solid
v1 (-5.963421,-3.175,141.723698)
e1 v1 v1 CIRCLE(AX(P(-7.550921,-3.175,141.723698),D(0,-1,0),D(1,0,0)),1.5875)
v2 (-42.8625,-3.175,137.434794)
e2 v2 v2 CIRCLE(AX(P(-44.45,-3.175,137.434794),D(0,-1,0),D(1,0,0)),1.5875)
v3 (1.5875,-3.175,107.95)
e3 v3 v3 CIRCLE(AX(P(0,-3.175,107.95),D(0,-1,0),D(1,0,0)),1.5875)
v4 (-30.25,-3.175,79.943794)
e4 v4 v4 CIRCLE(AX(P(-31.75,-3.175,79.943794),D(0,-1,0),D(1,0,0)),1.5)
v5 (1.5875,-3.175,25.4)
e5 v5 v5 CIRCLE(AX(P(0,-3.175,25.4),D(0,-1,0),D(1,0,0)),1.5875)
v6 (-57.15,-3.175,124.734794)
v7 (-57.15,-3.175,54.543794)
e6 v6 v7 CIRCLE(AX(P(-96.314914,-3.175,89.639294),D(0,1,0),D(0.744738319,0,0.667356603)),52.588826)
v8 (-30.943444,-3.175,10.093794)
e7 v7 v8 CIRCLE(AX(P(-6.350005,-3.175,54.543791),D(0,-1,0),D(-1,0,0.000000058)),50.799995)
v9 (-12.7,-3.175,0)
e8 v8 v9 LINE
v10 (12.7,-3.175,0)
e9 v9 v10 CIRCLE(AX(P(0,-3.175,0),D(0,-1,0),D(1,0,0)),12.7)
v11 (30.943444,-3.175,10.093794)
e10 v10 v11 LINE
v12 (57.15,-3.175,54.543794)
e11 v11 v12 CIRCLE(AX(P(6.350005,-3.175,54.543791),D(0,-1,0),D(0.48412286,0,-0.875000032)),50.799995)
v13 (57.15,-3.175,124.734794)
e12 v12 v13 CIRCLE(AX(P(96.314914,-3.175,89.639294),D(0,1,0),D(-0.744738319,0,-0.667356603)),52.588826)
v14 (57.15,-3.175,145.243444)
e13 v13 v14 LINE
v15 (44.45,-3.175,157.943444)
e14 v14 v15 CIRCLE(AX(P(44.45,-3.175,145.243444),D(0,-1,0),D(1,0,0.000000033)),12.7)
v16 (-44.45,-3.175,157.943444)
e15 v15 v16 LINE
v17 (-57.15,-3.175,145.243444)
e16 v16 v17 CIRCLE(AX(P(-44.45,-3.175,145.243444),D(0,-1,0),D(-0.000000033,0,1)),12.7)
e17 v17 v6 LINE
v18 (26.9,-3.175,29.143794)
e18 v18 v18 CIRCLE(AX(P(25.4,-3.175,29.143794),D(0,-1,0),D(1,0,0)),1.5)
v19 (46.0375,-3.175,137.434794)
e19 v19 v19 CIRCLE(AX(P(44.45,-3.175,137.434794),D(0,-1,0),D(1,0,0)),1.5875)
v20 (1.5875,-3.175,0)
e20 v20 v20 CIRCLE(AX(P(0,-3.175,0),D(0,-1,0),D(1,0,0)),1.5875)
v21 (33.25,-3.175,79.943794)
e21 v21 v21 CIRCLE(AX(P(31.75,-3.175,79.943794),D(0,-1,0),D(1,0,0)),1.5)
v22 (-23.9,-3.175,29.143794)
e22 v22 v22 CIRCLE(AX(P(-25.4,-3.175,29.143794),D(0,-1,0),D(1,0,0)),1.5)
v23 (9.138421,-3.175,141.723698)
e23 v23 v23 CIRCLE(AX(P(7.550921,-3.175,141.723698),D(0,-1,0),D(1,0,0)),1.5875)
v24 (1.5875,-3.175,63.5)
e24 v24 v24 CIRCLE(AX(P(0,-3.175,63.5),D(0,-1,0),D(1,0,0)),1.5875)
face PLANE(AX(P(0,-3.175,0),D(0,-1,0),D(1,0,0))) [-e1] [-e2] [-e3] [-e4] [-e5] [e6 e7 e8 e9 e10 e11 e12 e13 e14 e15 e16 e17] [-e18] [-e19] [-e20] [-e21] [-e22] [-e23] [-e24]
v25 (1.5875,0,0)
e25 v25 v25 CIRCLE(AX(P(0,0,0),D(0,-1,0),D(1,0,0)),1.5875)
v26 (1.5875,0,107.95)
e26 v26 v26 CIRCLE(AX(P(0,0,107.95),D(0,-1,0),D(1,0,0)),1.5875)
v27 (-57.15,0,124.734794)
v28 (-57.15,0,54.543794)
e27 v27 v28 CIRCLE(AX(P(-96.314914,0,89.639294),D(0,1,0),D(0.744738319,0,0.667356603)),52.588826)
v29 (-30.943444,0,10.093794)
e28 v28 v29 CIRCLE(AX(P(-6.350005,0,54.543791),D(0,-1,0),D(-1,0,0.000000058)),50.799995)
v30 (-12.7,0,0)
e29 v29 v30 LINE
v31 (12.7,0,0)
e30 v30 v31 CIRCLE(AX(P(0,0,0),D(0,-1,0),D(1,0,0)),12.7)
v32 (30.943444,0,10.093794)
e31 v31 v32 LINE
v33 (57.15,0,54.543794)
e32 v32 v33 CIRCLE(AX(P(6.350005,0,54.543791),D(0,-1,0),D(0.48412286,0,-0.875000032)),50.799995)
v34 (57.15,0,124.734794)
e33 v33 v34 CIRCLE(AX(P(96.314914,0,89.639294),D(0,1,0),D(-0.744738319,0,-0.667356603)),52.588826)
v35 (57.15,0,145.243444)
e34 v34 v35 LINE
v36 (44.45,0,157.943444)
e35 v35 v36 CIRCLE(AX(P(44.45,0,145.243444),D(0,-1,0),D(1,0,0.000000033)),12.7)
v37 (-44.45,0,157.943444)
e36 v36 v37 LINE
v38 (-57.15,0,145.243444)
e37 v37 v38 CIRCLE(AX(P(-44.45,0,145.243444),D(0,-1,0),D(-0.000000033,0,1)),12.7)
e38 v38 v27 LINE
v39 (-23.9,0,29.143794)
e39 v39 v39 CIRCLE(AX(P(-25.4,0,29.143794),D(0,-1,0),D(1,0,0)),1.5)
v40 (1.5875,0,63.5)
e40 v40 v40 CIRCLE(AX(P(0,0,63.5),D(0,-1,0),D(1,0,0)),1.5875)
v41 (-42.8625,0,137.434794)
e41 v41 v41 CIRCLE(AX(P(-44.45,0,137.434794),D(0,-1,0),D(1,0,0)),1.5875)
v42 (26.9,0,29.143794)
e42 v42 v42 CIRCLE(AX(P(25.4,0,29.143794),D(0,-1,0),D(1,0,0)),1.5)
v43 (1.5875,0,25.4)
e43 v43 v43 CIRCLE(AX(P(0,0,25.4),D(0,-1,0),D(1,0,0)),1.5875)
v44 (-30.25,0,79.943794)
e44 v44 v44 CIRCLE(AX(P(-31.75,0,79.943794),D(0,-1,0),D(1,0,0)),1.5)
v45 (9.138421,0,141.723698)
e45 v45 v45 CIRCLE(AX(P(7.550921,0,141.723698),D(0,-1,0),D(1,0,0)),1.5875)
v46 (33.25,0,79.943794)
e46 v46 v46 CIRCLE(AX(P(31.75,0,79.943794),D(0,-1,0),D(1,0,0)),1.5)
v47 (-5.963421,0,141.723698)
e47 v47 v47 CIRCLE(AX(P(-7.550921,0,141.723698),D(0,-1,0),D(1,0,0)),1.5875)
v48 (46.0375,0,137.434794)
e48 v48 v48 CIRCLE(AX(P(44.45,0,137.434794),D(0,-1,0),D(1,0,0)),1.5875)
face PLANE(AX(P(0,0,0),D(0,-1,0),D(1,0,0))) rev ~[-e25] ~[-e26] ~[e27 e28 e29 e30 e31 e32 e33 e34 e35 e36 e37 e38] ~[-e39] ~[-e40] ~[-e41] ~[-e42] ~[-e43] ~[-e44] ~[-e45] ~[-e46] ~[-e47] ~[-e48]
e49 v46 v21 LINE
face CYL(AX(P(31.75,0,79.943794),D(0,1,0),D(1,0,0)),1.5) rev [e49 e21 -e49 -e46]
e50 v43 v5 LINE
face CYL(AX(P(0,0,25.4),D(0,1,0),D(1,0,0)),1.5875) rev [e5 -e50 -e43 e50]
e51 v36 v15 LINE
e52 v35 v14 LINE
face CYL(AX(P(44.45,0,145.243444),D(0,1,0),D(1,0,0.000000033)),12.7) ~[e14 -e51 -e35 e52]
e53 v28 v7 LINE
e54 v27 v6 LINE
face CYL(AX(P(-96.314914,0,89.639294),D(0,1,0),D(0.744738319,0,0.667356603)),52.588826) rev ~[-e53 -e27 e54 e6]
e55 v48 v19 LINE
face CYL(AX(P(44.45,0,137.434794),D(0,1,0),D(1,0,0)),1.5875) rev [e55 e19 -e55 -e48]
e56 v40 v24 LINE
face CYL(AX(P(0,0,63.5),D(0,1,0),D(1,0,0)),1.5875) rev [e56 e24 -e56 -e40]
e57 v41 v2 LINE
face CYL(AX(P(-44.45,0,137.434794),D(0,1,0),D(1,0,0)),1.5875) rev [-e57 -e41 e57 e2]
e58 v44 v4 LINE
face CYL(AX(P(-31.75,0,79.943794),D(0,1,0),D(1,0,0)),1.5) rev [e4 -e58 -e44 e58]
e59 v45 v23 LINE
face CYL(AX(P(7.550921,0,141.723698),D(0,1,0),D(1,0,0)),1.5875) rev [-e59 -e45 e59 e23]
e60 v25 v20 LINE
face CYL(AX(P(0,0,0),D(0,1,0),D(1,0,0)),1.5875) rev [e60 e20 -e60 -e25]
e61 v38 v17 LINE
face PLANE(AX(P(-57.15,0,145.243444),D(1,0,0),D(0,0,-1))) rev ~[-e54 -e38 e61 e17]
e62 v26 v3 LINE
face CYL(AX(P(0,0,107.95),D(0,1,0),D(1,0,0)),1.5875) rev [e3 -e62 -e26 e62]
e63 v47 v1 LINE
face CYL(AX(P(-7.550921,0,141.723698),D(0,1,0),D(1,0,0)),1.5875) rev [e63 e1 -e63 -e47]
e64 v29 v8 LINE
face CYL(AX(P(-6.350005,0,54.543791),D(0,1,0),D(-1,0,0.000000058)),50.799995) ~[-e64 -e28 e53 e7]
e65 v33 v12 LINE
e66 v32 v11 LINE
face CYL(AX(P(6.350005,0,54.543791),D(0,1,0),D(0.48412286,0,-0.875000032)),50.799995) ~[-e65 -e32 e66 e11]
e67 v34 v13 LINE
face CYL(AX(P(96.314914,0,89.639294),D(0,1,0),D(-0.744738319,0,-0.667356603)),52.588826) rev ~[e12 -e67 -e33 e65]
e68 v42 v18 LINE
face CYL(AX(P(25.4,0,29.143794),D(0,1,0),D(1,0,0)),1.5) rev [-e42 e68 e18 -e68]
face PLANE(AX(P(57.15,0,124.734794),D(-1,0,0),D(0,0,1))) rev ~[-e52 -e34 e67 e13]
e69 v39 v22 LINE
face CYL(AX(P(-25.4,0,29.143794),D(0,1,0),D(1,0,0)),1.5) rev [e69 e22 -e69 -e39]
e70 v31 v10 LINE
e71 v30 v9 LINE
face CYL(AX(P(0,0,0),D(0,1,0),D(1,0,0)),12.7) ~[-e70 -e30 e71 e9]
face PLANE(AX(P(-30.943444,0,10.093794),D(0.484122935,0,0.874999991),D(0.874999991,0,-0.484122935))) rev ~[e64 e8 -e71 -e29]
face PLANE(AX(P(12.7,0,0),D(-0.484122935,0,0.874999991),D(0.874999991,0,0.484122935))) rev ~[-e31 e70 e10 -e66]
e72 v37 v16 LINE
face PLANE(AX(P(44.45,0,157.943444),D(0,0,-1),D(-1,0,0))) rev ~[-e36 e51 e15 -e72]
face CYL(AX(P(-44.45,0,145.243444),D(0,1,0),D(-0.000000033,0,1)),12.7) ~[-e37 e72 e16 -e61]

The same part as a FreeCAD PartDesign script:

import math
import FreeCAD as App
import Part
import Sketcher

V = App.Vector
Q = App.Units.Quantity

doc = App.newDocument("Part")
body = doc.addObject("PartDesign::Body", "Body")

sketch1 = body.newObject("Sketcher::SketchObject", "Sketch")
sketch1.AttachmentSupport = (doc.getObject("XZ_Plane"), [""])
sketch1.MapMode = "FlatFace"
sketch1.addGeometry([
    Part.ArcOfCircle(Part.Circle(V(0, 0, 0), V(0, 0, 1), 12.7), math.radians(180), math.radians(360)),
    Part.LineSegment(V(12.7, 0, 0), V(30.9, 10.1, 0)),
    Part.ArcOfCircle(Part.Circle(V(6.4, 54.5, 0), V(0, 0, 1), 50.8), math.radians(-61), math.radians(0)),
    Part.ArcOfCircle(Part.Circle(V(96.3, 89.6, 0), V(0, 0, 1), 52.6), math.radians(138), math.radians(222)),
    Part.LineSegment(V(57.1, 124.7, 0), V(57.1, 145.2, 0)),
    Part.ArcOfCircle(Part.Circle(V(44.4, 145.2, 0), V(0, 0, 1), 12.7), math.radians(0), math.radians(90)),
    Part.LineSegment(V(44.5, 157.9, 0), V(-44.5, 157.9, 0)),
    Part.ArcOfCircle(Part.Circle(V(-44.4, 145.2, 0), V(0, 0, 1), 12.7), math.radians(90), math.radians(180)),
    Part.LineSegment(V(-57.1, 145.2, 0), V(-57.1, 124.7, 0)),
    Part.ArcOfCircle(Part.Circle(V(-96.3, 89.6, 0), V(0, 0, 1), 52.6), math.radians(-42), math.radians(42)),
    Part.ArcOfCircle(Part.Circle(V(-6.4, 54.5, 0), V(0, 0, 1), 50.8), math.radians(180), math.radians(241)),
    Part.LineSegment(V(-30.9, 10.1, 0), V(-12.7, 0, 0)),
    Part.Circle(V(-25.4, 29.1, 0), V(0, 0, 1), 1.5),
    Part.Circle(V(0, 0, 0), V(0, 0, 1), 1.6),
    Part.Circle(V(0, 25.4, 0), V(0, 0, 1), 1.6),
    Part.Circle(V(25.4, 29.1, 0), V(0, 0, 1), 1.5),
    Part.Circle(V(0, 63.5, 0), V(0, 0, 1), 1.6),
    Part.Circle(V(-31.8, 79.9, 0), V(0, 0, 1), 1.5),
    Part.Circle(V(-44.5, 137.4, 0), V(0, 0, 1), 1.6),
    Part.Circle(V(-7.6, 141.7, 0), V(0, 0, 1), 1.6),
    Part.Circle(V(31.8, 79.9, 0), V(0, 0, 1), 1.5),
    Part.Circle(V(0, 108, 0), V(0, 0, 1), 1.6),
    Part.Circle(V(7.6, 141.7, 0), V(0, 0, 1), 1.6),
    Part.Circle(V(44.5, 137.4, 0), V(0, 0, 1), 1.6),
], False)
sketch1.addConstraint([
    Sketcher.Constraint("Coincident", 0, 2, 1, 1),
    Sketcher.Constraint("Tangent", 1, 2, 2, 1),
    Sketcher.Constraint("Coincident", 2, 2, 3, 2),
    Sketcher.Constraint("Coincident", 3, 1, 4, 1),
    Sketcher.Constraint("Tangent", 4, 2, 5, 1),
    Sketcher.Constraint("Tangent", 5, 2, 6, 1),
    Sketcher.Constraint("Tangent", 6, 2, 7, 1),
    Sketcher.Constraint("Tangent", 7, 2, 8, 1),
    Sketcher.Constraint("Coincident", 8, 2, 9, 2),
    Sketcher.Constraint("Coincident", 9, 1, 10, 1),
    Sketcher.Constraint("Tangent", 10, 2, 11, 1),
    Sketcher.Constraint("Coincident", 11, 2, 0, 1),
    Sketcher.Constraint("Vertical", 4),
    Sketcher.Constraint("Horizontal", 6),
    Sketcher.Constraint("Vertical", 8),
    Sketcher.Constraint("Coincident", 0, 3, -1, 1),
    Sketcher.Constraint("Coincident", 13, 3, -1, 1),
    Sketcher.Constraint("Equal", 0, 5),
    Sketcher.Constraint("Equal", 5, 7),
    Sketcher.Constraint("Equal", 3, 9),
    Sketcher.Constraint("Equal", 2, 10),
    Sketcher.Constraint("Equal", 13, 14),
    Sketcher.Constraint("Equal", 12, 15),
    Sketcher.Constraint("Equal", 14, 16),
    Sketcher.Constraint("Equal", 15, 17),
    Sketcher.Constraint("Equal", 16, 18),
    Sketcher.Constraint("Equal", 18, 19),
    Sketcher.Constraint("Equal", 17, 20),
    Sketcher.Constraint("Equal", 19, 21),
    Sketcher.Constraint("Equal", 21, 22),
    Sketcher.Constraint("Equal", 22, 23),
    Sketcher.Constraint("Symmetric", 3, 3, 9, 3, -2),
    Sketcher.Constraint("Symmetric", 2, 3, 10, 3, -2),
    Sketcher.Constraint("Symmetric", 12, 3, 15, 3, -2),
    Sketcher.Constraint("Symmetric", 17, 3, 20, 3, -2),
    Sketcher.Constraint("Symmetric", 19, 3, 22, 3, -2),
    Sketcher.Constraint("Symmetric", 18, 3, 23, 3, -2),
    Sketcher.Constraint("PointOnObject", 14, 3, -2),
    Sketcher.Constraint("PointOnObject", 16, 3, -2),
    Sketcher.Constraint("PointOnObject", 21, 3, -2),
    Sketcher.Constraint("PointOnObject", 0, 2, -1),
    Sketcher.Constraint("PointOnObject", 11, 2, -1),
    Sketcher.Constraint("Horizontal", 3, 1, 8, 2),
    Sketcher.Constraint("Vertical", 7, 3, 18, 3),
    Sketcher.Constraint("Vertical", 2, 2, 3, 1),
    Sketcher.Constraint("Radius", 0, Q("0.5 in")),
    Sketcher.Constraint("Diameter", 13, Q("0.125 in")),
    Sketcher.Constraint("DistanceX", 6, 2, 6, 1, Q("3.5 in")),
    Sketcher.Constraint("DistanceX", 12, 3, -1, 1, Q("1 in")),
    Sketcher.Constraint("DistanceY", -1, 1, 14, 3, Q("1 in")),
    Sketcher.Constraint("DistanceX", 7, 3, 2, 3, Q("2.0000002 in")),
    Sketcher.Constraint("DistanceY", 12, 3, 10, 3, Q("0.9999999 in")),
    Sketcher.Constraint("DistanceY", 10, 3, 17, 3, Q("1.0000001 in")),
    Sketcher.Constraint("DistanceX", 20, 3, 2, 2, Q("1 in")),
    Sketcher.Constraint("DistanceY", 2, 2, 20, 3, Q("1 in")),
    Sketcher.Constraint("DistanceY", -1, 1, 16, 3, Q("2.5 in")),
    Sketcher.Constraint("DistanceY", 3, 1, 23, 3, Q("0.5 in")),
    Sketcher.Constraint("Diameter", 12, 3.0),
    Sketcher.Constraint("DistanceY", -1, 1, 21, 3, Q("4.25 in")),
    Sketcher.Constraint("DistanceY", 1, 2, 15, 3, Q("0.75 in")),
    Sketcher.Constraint("Radius", 3, 52.588826),
    Sketcher.Constraint("DistanceY", 4, 1, 4, 2, 20.50865),
    Sketcher.Constraint("DistanceY", -1, 1, 19, 3, 141.723698),
    Sketcher.Constraint("DistanceY", 12, 3, 9, 3, 60.4955),
    Sketcher.Constraint("DistanceX", 19, 3, -1, 1, 7.550921),
])
pad1 = body.newObject("PartDesign::Pad", "Pad")
pad1.Profile = sketch1
pad1.Length = Q("0.125 in")

doc.recompute()
